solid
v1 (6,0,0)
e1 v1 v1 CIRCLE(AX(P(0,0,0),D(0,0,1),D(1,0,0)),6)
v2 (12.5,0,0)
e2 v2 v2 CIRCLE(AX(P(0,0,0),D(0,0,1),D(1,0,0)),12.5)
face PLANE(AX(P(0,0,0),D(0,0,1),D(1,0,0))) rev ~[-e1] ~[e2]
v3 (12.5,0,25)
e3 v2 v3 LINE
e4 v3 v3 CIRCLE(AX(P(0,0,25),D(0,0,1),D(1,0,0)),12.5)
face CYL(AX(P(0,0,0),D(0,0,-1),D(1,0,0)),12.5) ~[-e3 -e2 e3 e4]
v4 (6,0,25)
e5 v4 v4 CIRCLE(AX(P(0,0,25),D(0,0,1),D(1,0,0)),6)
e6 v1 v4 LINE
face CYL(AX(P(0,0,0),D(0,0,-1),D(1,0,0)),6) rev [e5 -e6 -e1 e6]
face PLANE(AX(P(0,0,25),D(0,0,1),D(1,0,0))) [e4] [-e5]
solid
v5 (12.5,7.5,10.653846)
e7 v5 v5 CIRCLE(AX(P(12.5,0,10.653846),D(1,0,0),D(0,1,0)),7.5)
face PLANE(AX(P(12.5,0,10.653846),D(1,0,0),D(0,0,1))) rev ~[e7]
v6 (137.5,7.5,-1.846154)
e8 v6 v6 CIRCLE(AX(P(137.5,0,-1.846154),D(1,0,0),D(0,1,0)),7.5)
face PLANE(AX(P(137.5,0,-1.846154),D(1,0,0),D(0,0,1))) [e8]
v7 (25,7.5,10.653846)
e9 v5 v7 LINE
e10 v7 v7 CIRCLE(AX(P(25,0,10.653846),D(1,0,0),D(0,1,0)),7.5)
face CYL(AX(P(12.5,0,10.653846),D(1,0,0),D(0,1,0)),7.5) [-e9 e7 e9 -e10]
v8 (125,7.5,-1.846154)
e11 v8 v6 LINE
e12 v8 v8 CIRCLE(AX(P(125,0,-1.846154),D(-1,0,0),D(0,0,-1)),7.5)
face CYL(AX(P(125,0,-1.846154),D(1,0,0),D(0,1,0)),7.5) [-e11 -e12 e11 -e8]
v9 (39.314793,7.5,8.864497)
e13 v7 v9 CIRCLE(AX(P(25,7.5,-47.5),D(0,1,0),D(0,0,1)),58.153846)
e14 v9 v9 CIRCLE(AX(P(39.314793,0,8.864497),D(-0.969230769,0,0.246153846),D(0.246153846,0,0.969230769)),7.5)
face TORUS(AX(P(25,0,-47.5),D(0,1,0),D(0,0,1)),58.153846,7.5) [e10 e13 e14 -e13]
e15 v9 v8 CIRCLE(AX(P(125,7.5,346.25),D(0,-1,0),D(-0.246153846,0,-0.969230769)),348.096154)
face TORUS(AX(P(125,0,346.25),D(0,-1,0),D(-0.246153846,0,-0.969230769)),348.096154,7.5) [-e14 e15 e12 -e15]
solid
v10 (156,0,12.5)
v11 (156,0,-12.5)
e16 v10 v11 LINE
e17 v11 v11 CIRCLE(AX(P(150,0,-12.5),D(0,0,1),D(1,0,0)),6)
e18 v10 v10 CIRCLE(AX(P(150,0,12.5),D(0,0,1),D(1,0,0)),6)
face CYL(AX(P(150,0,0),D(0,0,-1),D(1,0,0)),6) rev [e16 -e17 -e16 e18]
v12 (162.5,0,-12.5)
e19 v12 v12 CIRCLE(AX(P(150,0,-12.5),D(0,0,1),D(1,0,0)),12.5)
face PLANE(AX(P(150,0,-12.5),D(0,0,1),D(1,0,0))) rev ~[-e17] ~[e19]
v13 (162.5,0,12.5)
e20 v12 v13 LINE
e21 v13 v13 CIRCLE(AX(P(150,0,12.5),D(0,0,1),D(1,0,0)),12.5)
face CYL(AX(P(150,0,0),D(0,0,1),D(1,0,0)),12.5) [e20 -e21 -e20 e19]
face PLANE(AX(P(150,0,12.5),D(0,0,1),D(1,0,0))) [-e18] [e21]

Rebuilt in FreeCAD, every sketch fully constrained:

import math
import FreeCAD as App
import Part
import Sketcher

V = App.Vector
Q = App.Units.Quantity

doc = App.newDocument("Part")
params = doc.addObject("Spreadsheet::Sheet", "Params")
for row, (alias, value) in enumerate([
    ("sketch1_diameter", "25 mm"),
    ("sketch1_diameter2", "12 mm"),
    ("pad1_length", "25 mm"),
    ("sketch2_diameter", "25 mm"),
    ("sketch2_diameter2", "12 mm"),
    ("pad2_length", "25 mm"),
    ("sketch3_diameter", "15 mm"),
    ("sketch4_radius", "60 mm"),
    ("sketch4_radius2", "346.25 mm"),
    ("sketch4_width", "12.5 mm"),
], start=1):
    params.set(f"A{row}", alias)
    params.set(f"B{row}", "=" + value)
    params.setAlias(f"B{row}", alias)

body = doc.addObject("PartDesign::Body", "Body")

sketch1 = body.newObject("Sketcher::SketchObject", "Sketch")
sketch1.AttachmentSupport = (doc.getObject("XY_Plane"), [""])
sketch1.MapMode = "FlatFace"
sketch1.addGeometry([
    Part.Circle(V(0, 0, 0), V(0, 0, 1), 12),
    Part.Circle(V(0, 0, 0), V(0, 0, 1), 6),
], False)
sketch1.addConstraint([
    Sketcher.Constraint("Coincident", 0, 3, -1, 1),
    Sketcher.Constraint("Coincident", 1, 3, -1, 1),
    Sketcher.Constraint("Diameter", 0, Q("25 mm")),
    Sketcher.Constraint("Diameter", 1, Q("12 mm")),
])
sketch1.setExpression("Constraints[2]", "Params.sketch1_diameter")
sketch1.setExpression("Constraints[3]", "Params.sketch1_diameter2")
pad1 = body.newObject("PartDesign::Pad", "Pad")
pad1.Profile = sketch1
pad1.setExpression("Length", "Params.pad1_length")
body2 = doc.addObject("PartDesign::Body", "Body001")

sketch2 = body2.newObject("Sketcher::SketchObject", "Sketch001")
sketch2.AttachmentSupport = (doc.getObject("XY_Plane001"), [""])
sketch2.MapMode = "FlatFace"
sketch2.addGeometry([
    Part.Circle(V(150, 0, 0), V(0, 0, 1), 12),
    Part.Circle(V(150, 0, 0), V(0, 0, 1), 6),
], False)
sketch2.addConstraint([
    Sketcher.Constraint("Coincident", 1, 3, 0, 3),
    Sketcher.Constraint("PointOnObject", 0, 3, -1),
    Sketcher.Constraint("Diameter", 0, Q("25 mm")),
    Sketcher.Constraint("Diameter", 1, Q("12 mm")),
    Sketcher.Constraint("DistanceX", -1, 1, 0, 3, Q("150 mm")),
])
sketch2.setExpression("Constraints[2]", "Params.sketch2_diameter")
sketch2.setExpression("Constraints[3]", "Params.sketch2_diameter2")
pad2 = body2.newObject("PartDesign::Pad", "Pad001")
pad2.Profile = sketch2
pad2.setExpression("Length", "Params.pad2_length")
pad2.Midplane = True
body3 = doc.addObject("PartDesign::Body", "Body002")

sketch3 = body3.newObject("Sketcher::SketchObject", "Sketch002")
sketch3.AttachmentSupport = (doc.getObject("YZ_Plane002"), [""])
sketch3.MapMode = "FlatFace"
sketch3.AttachmentOffset = App.Placement(V(0, 0, 12.5), App.Rotation())
sketch3.addGeometry(Part.Circle(V(0, 11, 0), V(0, 0, 1), 8), False)
sketch3.addConstraint([
    Sketcher.Constraint("PointOnObject", 0, 3, -2),
    Sketcher.Constraint("Diameter", 0, Q("15 mm")),
    Sketcher.Constraint("DistanceY", -1, 1, 0, 3, Q("10.653846 mm")),
])
sketch3.setExpression("Constraints[1]", "Params.sketch3_diameter")

sketch4 = body3.newObject("Sketcher::SketchObject", "Sketch003")
sketch4.AttachmentSupport = (doc.getObject("XZ_Plane002"), [""])
sketch4.MapMode = "FlatFace"
sketch4.addGeometry([
    Part.LineSegment(V(12, 12, 0), V(25, 12, 0)),
    Part.ArcOfCircle(Part.Circle(V(25, -47, 0), V(0, 0, 1), 60), math.radians(75.75), math.radians(90)),
    Part.ArcOfCircle(Part.Circle(V(125, 346, 0), V(0, 0, 1), 346), math.radians(-104.25), math.radians(-90)),
    Part.LineSegment(V(125, 0, 0), V(138, 0, 0)),
], False)
sketch4.addConstraint([
    Sketcher.Constraint("Tangent", 0, 2, 1, 2),
    Sketcher.Constraint("Tangent", 1, 1, 2, 1),
    Sketcher.Constraint("Tangent", 2, 2, 3, 1),
    Sketcher.Constraint("Horizontal", 0),
    Sketcher.Constraint("Horizontal", 3),
    Sketcher.Constraint("PointOnObject", 2, 2, -1),
    Sketcher.Constraint("Equal", 0, 3),
    Sketcher.Constraint("Radius", 1, Q("60 mm")),
    Sketcher.Constraint("Radius", 2, Q("346.25 mm")),
    Sketcher.Constraint("DistanceX", 0, 1, 0, 2, Q("12.5 mm")),
    Sketcher.Constraint("DistanceX", -1, 1, 1, 3, Q("25 mm")),
    Sketcher.Constraint("DistanceX", -1, 1, 2, 3, Q("125 mm")),
])
sketch4.setExpression("Constraints[7]", "Params.sketch4_radius")
sketch4.setExpression("Constraints[8]", "Params.sketch4_radius2")
sketch4.setExpression("Constraints[9]", "Params.sketch4_width")
doc.recompute()

additivepipe = body3.newObject("PartDesign::AdditivePipe", "AdditivePipe")
additivepipe.Profile = sketch3
additivepipe.Spine = (sketch4, ["Edge1", "Edge2", "Edge3", "Edge4"])

doc.recompute()
